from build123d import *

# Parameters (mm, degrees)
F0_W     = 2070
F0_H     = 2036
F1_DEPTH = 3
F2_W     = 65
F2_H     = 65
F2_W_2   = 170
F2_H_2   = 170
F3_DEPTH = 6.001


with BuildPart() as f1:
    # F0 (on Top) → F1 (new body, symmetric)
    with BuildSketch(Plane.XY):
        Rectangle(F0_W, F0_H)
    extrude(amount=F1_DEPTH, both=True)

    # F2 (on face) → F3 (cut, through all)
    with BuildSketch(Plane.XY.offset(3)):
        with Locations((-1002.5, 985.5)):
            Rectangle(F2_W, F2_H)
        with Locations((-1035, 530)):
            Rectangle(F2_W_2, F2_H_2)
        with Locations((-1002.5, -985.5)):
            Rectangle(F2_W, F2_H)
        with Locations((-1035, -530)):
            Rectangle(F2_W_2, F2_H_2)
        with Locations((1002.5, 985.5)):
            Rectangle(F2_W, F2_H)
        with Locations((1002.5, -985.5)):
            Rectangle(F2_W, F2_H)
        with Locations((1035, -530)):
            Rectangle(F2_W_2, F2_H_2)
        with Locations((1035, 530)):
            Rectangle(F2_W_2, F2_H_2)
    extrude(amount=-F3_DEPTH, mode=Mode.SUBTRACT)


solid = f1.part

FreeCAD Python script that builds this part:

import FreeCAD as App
import Part
import Sketcher

V = App.Vector
Q = App.Units.Quantity

doc = App.newDocument("Part")
params = doc.addObject("Spreadsheet::Sheet", "Params")
for row, (alias, value) in enumerate([
    ("sketch1_width", "2070 mm"),
    ("sketch1_height", "2036 mm"),
    ("pad1_length", "6 mm"),
    ("sketch2_width", "65 mm"),
    ("sketch2_width2", "170 mm"),
], start=1):
    params.set(f"A{row}", alias)
    params.set(f"B{row}", "=" + value)
    params.setAlias(f"B{row}", alias)

body = doc.addObject("PartDesign::Body", "Body")

# Sketch on XY plane
sketch1 = body.newObject("Sketcher::SketchObject", "Sketch")
sketch1.AttachmentSupport = (doc.getObject("XY_Plane"), [""])
sketch1.MapMode = "FlatFace"
sketch1.addGeometry(Part.LineSegment(V(-1035, 1018, 0), V(-1035, -1018, 0)), False)
sketch1.addGeometry(Part.LineSegment(V(-1035, -1018, 0), V(1035, -1018, 0)), False)
sketch1.addGeometry(Part.LineSegment(V(1035, -1018, 0), V(1035, 1018, 0)), False)
sketch1.addGeometry(Part.LineSegment(V(1035, 1018, 0), V(-1035, 1018, 0)), False)
sketch1.addConstraint(Sketcher.Constraint("Coincident", 0, 2, 1, 1))
sketch1.addConstraint(Sketcher.Constraint("Coincident", 1, 2, 2, 1))
sketch1.addConstraint(Sketcher.Constraint("Coincident", 2, 2, 3, 1))
sketch1.addConstraint(Sketcher.Constraint("Coincident", 3, 2, 0, 1))
sketch1.addConstraint(Sketcher.Constraint("Vertical", 0))
sketch1.addConstraint(Sketcher.Constraint("Horizontal", 1))
sketch1.addConstraint(Sketcher.Constraint("Vertical", 2))
sketch1.addConstraint(Sketcher.Constraint("Horizontal", 3))
sketch1.addConstraint(Sketcher.Constraint("Symmetric", 0, 2, 2, 2, -1, 1))
sketch1.addConstraint(Sketcher.Constraint("DistanceX", 1, 1, 1, 2, Q("2070 mm")))
sketch1.addConstraint(Sketcher.Constraint("DistanceY", 0, 2, 0, 1, Q("2036 mm")))
sketch1.setExpression("Constraints[9]", "Params.sketch1_width")
sketch1.setExpression("Constraints[10]", "Params.sketch1_height")
pad1 = body.newObject("PartDesign::Pad", "Pad")
pad1.Profile = sketch1
pad1.setExpression("Length", "Params.pad1_length")
pad1.Midplane = True

# Sketch on XY plane
sketch2 = body.newObject("Sketcher::SketchObject", "Sketch001")
sketch2.AttachmentSupport = (doc.getObject("XY_Plane"), [""])
sketch2.MapMode = "FlatFace"
sketch2.AttachmentOffset = App.Placement(V(0, 0, 3), App.Rotation())
sketch2.addGeometry(Part.LineSegment(V(-1035, 1018, 0), V(-1035, 953, 0)), False)
sketch2.addGeometry(Part.LineSegment(V(-1035, 953, 0), V(-970, 953, 0)), False)
sketch2.addGeometry(Part.LineSegment(V(-970, 953, 0), V(-970, 1018, 0)), False)
sketch2.addGeometry(Part.LineSegment(V(-970, 1018, 0), V(-1035, 1018, 0)), False)
sketch2.addGeometry(Part.LineSegment(V(-1120, 615, 0), V(-1120, 445, 0)), False)
sketch2.addGeometry(Part.LineSegment(V(-1120, 445, 0), V(-950, 445, 0)), False)
sketch2.addGeometry(Part.LineSegment(V(-950, 445, 0), V(-950, 615, 0)), False)
sketch2.addGeometry(Part.LineSegment(V(-950, 615, 0), V(-1120, 615, 0)), False)
sketch2.addGeometry(Part.LineSegment(V(-1035, -953, 0), V(-1035, -1018, 0)), False)
sketch2.addGeometry(Part.LineSegment(V(-1035, -1018, 0), V(-970, -1018, 0)), False)
sketch2.addGeometry(Part.LineSegment(V(-970, -1018, 0), V(-970, -953, 0)), False)
sketch2.addGeometry(Part.LineSegment(V(-970, -953, 0), V(-1035, -953, 0)), False)
sketch2.addGeometry(Part.LineSegment(V(-1120, -445, 0), V(-1120, -615, 0)), False)
sketch2.addGeometry(Part.LineSegment(V(-1120, -615, 0), V(-950, -615, 0)), False)
sketch2.addGeometry(Part.LineSegment(V(-950, -615, 0), V(-950, -445, 0)), False)
sketch2.addGeometry(Part.LineSegment(V(-950, -445, 0), V(-1120, -445, 0)), False)
sketch2.addGeometry(Part.LineSegment(V(970, 1018, 0), V(970, 953, 0)), False)
sketch2.addGeometry(Part.LineSegment(V(970, 953, 0), V(1035, 953, 0)), False)
sketch2.addGeometry(Part.LineSegment(V(1035, 953, 0), V(1035, 1018, 0)), False)
sketch2.addGeometry(Part.LineSegment(V(1035, 1018, 0), V(970, 1018, 0)), False)
sketch2.addGeometry(Part.LineSegment(V(970, -953, 0), V(970, -1018, 0)), False)
sketch2.addGeometry(Part.LineSegment(V(970, -1018, 0), V(1035, -1018, 0)), False)
sketch2.addGeometry(Part.LineSegment(V(1035, -1018, 0), V(1035, -953, 0)), False)
sketch2.addGeometry(Part.LineSegment(V(1035, -953, 0), V(970, -953, 0)), False)
sketch2.addGeometry(Part.LineSegment(V(950, -445, 0), V(950, -615, 0)), False)
sketch2.addGeometry(Part.LineSegment(V(950, -615, 0), V(1120, -615, 0)), False)
sketch2.addGeometry(Part.LineSegment(V(1120, -615, 0), V(1120, -445, 0)), False)
sketch2.addGeometry(Part.LineSegment(V(1120, -445, 0), V(950, -445, 0)), False)
sketch2.addGeometry(Part.LineSegment(V(950, 615, 0), V(950, 445, 0)), False)
sketch2.addGeometry(Part.LineSegment(V(950, 445, 0), V(1120, 445, 0)), False)
sketch2.addGeometry(Part.LineSegment(V(1120, 445, 0), V(1120, 615, 0)), False)
sketch2.addGeometry(Part.LineSegment(V(1120, 615, 0), V(950, 615, 0)), False)
sketch2.addConstraint(Sketcher.Constraint("Coincident", 0, 2, 1, 1))
sketch2.addConstraint(Sketcher.Constraint("Coincident", 1, 2, 2, 1))
sketch2.addConstraint(Sketcher.Constraint("Coincident", 2, 2, 3, 1))
sketch2.addConstraint(Sketcher.Constraint("Coincident", 3, 2, 0, 1))
sketch2.addConstraint(Sketcher.Constraint("Coincident", 4, 2, 5, 1))
sketch2.addConstraint(Sketcher.Constraint("Coincident", 5, 2, 6, 1))
sketch2.addConstraint(Sketcher.Constraint("Coincident", 6, 2, 7, 1))
sketch2.addConstraint(Sketcher.Constraint("Coincident", 7, 2, 4, 1))
sketch2.addConstraint(Sketcher.Constraint("Coincident", 8, 2, 9, 1))
sketch2.addConstraint(Sketcher.Constraint("Coincident", 9, 2, 10, 1))
sketch2.addConstraint(Sketcher.Constraint("Coincident", 10, 2, 11, 1))
sketch2.addConstraint(Sketcher.Constraint("Coincident", 11, 2, 8, 1))
sketch2.addConstraint(Sketcher.Constraint("Coincident", 12, 2, 13, 1))
sketch2.addConstraint(Sketcher.Constraint("Coincident", 13, 2, 14, 1))
sketch2.addConstraint(Sketcher.Constraint("Coincident", 14, 2, 15, 1))
sketch2.addConstraint(Sketcher.Constraint("Coincident", 15, 2, 12, 1))
sketch2.addConstraint(Sketcher.Constraint("Coincident", 16, 2, 17, 1))
sketch2.addConstraint(Sketcher.Constraint("Coincident", 17, 2, 18, 1))
sketch2.addConstraint(Sketcher.Constraint("Coincident", 18, 2, 19, 1))
sketch2.addConstraint(Sketcher.Constraint("Coincident", 19, 2, 16, 1))
sketch2.addConstraint(Sketcher.Constraint("Coincident", 20, 2, 21, 1))
sketch2.addConstraint(Sketcher.Constraint("Coincident", 21, 2, 22, 1))
sketch2.addConstraint(Sketcher.Constraint("Coincident", 22, 2, 23, 1))
sketch2.addConstraint(Sketcher.Constraint("Coincident", 23, 2, 20, 1))
sketch2.addConstraint(Sketcher.Constraint("Coincident", 24, 2, 25, 1))
sketch2.addConstraint(Sketcher.Constraint("Coincident", 25, 2, 26, 1))
sketch2.addConstraint(Sketcher.Constraint("Coincident", 26, 2, 27, 1))
sketch2.addConstraint(Sketcher.Constraint("Coincident", 27, 2, 24, 1))
sketch2.addConstraint(Sketcher.Constraint("Coincident", 28, 2, 29, 1))
sketch2.addConstraint(Sketcher.Constraint("Coincident", 29, 2, 30, 1))
sketch2.addConstraint(Sketcher.Constraint("Coincident", 30, 2, 31, 1))
sketch2.addConstraint(Sketcher.Constraint("Coincident", 31, 2, 28, 1))
sketch2.addConstraint(Sketcher.Constraint("Vertical", 0))
sketch2.addConstraint(Sketcher.Constraint("Horizontal", 1))
sketch2.addConstraint(Sketcher.Constraint("Vertical", 2))
sketch2.addConstraint(Sketcher.Constraint("Horizontal", 3))
sketch2.addConstraint(Sketcher.Constraint("Vertical", 4))
sketch2.addConstraint(Sketcher.Constraint("Horizontal", 5))
sketch2.addConstraint(Sketcher.Constraint("Vertical", 6))
sketch2.addConstraint(Sketcher.Constraint("Horizontal", 7))
sketch2.addConstraint(Sketcher.Constraint("Vertical", 8))
sketch2.addConstraint(Sketcher.Constraint("Horizontal", 9))
sketch2.addConstraint(Sketcher.Constraint("Vertical", 10))
sketch2.addConstraint(Sketcher.Constraint("Horizontal", 11))
sketch2.addConstraint(Sketcher.Constraint("Vertical", 12))
sketch2.addConstraint(Sketcher.Constraint("Horizontal", 13))
sketch2.addConstraint(Sketcher.Constraint("Vertical", 14))
sketch2.addConstraint(Sketcher.Constraint("Horizontal", 15))
sketch2.addConstraint(Sketcher.Constraint("Vertical", 16))
sketch2.addConstraint(Sketcher.Constraint("Horizontal", 17))
sketch2.addConstraint(Sketcher.Constraint("Vertical", 18))
sketch2.addConstraint(Sketcher.Constraint("Horizontal", 19))
sketch2.addConstraint(Sketcher.Constraint("Vertical", 20))
sketch2.addConstraint(Sketcher.Constraint("Horizontal", 21))
sketch2.addConstraint(Sketcher.Constraint("Vertical", 22))
sketch2.addConstraint(Sketcher.Constraint("Horizontal", 23))
sketch2.addConstraint(Sketcher.Constraint("Vertical", 24))
sketch2.addConstraint(Sketcher.Constraint("Horizontal", 25))
sketch2.addConstraint(Sketcher.Constraint("Vertical", 26))
sketch2.addConstraint(Sketcher.Constraint("Horizontal", 27))
sketch2.addConstraint(Sketcher.Constraint("Vertical", 28))
sketch2.addConstraint(Sketcher.Constraint("Horizontal", 29))
sketch2.addConstraint(Sketcher.Constraint("Vertical", 30))
sketch2.addConstraint(Sketcher.Constraint("Horizontal", 31))
sketch2.addConstraint(Sketcher.Constraint("Symmetric", 10, 2, 16, 2, -1, 1))
sketch2.addConstraint(Sketcher.Constraint("Symmetric", 8, 2, 18, 2, -1, 1))
sketch2.addConstraint(Sketcher.Constraint("Symmetric", 2, 2, 20, 2, -1, 1))
sketch2.addConstraint(Sketcher.Constraint("Symmetric", 0, 2, 22, 2, -1, 1))
sketch2.addConstraint(Sketcher.Constraint("Symmetric", 6, 2, 24, 2, -1, 1))
sketch2.addConstraint(Sketcher.Constraint("Symmetric", 4, 2, 26, 2, -1, 1))
sketch2.addConstraint(Sketcher.Constraint("Symmetric", 14, 2, 28, 2, -1, 1))
sketch2.addConstraint(Sketcher.Constraint("Symmetric", 12, 2, 30, 2, -1, 1))
sketch2.addConstraint(Sketcher.Constraint("Symmetric", 1, 2, 16, 2, -2))
sketch2.addConstraint(Sketcher.Constraint("Symmetric", 3, 2, 18, 2, -2))
sketch2.addConstraint(Sketcher.Constraint("Symmetric", 13, 2, 24, 2, -2))
sketch2.addConstraint(Sketcher.Constraint("Symmetric", 15, 2, 26, 2, -2))
sketch2.addConstraint(Sketcher.Constraint("Equal", 23, 0))
sketch2.addConstraint(Sketcher.Constraint("Equal", 31, 4))
sketch2.addConstraint(Sketcher.Constraint("DistanceX", 1, 1, 1, 2, Q("65 mm")))
sketch2.addConstraint(Sketcher.Constraint("DistanceX", 5, 1, 5, 2, Q("170 mm")))
sketch2.addConstraint(Sketcher.Constraint("DistanceX", 0, 2, -1, 1, Q("1035 mm")))
sketch2.addConstraint(Sketcher.Constraint("DistanceY", -1, 1, 0, 2, Q("953 mm")))
sketch2.addConstraint(Sketcher.Constraint("DistanceX", 4, 2, -1, 1, Q("1120 mm")))
sketch2.addConstraint(Sketcher.Constraint("DistanceY", -1, 1, 4, 2, Q("445 mm")))
sketch2.setExpression("Constraints[78]", "Params.sketch2_width")
sketch2.setExpression("Constraints[79]", "Params.sketch2_width2")
pocket1 = body.newObject("PartDesign::Pocket", "Pocket")
pocket1.Profile = sketch2
pocket1.Type = "ThroughAll"

doc.recompute()
